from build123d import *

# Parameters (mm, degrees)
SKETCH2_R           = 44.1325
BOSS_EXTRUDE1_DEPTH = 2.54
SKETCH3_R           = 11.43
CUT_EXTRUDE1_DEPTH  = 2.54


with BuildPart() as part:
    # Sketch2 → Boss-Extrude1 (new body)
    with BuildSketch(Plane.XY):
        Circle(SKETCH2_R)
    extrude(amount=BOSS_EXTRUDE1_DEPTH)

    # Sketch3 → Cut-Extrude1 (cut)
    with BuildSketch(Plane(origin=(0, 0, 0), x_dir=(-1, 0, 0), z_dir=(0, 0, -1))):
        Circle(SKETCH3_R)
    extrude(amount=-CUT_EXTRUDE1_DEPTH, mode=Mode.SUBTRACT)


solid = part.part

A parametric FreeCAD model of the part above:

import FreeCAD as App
import Part
import Sketcher
from FreeCAD import Vector
Q = App.Units.Quantity

doc = App.newDocument("Part")
body = doc.addObject("PartDesign::Body", "Body")

# Sketch on XY plane
sketch1 = body.newObject("Sketcher::SketchObject", "Sketch")
sketch1.AttachmentSupport = (doc.getObject("XY_Plane"), [""])
sketch1.MapMode = "FlatFace"
sketch1.addGeometry(Part.Circle(Vector(0, 0, 0), Vector(0, 0, 1), 44), False)
sketch1.addConstraint([
    Sketcher.Constraint("Coincident", 0, 3, -1, 1),
    Sketcher.Constraint("Diameter", 0, Q("3.475 in")),
])
pad1 = body.newObject("PartDesign::Pad", "Pad")
pad1.Profile = sketch1
pad1.Length = Q("0.1 in")

# Sketch on XY plane
sketch2 = body.newObject("Sketcher::SketchObject", "Sketch001")
sketch2.AttachmentSupport = (doc.getObject("XY_Plane"), [""])
sketch2.MapMode = "FlatFace"
sketch2.addGeometry(Part.Circle(Vector(0, 0, 0), Vector(0, 0, 1), 11), False)
sketch2.addConstraint([
    Sketcher.Constraint("Coincident", 0, 3, -1, 1),
    Sketcher.Constraint("Diameter", 0, Q("0.9 in")),
])
pocket1 = body.newObject("PartDesign::Pocket", "Pocket")
pocket1.Profile = sketch2
pocket1.Length = Q("0.1 in")
pocket1.Reversed = True

doc.recompute()
